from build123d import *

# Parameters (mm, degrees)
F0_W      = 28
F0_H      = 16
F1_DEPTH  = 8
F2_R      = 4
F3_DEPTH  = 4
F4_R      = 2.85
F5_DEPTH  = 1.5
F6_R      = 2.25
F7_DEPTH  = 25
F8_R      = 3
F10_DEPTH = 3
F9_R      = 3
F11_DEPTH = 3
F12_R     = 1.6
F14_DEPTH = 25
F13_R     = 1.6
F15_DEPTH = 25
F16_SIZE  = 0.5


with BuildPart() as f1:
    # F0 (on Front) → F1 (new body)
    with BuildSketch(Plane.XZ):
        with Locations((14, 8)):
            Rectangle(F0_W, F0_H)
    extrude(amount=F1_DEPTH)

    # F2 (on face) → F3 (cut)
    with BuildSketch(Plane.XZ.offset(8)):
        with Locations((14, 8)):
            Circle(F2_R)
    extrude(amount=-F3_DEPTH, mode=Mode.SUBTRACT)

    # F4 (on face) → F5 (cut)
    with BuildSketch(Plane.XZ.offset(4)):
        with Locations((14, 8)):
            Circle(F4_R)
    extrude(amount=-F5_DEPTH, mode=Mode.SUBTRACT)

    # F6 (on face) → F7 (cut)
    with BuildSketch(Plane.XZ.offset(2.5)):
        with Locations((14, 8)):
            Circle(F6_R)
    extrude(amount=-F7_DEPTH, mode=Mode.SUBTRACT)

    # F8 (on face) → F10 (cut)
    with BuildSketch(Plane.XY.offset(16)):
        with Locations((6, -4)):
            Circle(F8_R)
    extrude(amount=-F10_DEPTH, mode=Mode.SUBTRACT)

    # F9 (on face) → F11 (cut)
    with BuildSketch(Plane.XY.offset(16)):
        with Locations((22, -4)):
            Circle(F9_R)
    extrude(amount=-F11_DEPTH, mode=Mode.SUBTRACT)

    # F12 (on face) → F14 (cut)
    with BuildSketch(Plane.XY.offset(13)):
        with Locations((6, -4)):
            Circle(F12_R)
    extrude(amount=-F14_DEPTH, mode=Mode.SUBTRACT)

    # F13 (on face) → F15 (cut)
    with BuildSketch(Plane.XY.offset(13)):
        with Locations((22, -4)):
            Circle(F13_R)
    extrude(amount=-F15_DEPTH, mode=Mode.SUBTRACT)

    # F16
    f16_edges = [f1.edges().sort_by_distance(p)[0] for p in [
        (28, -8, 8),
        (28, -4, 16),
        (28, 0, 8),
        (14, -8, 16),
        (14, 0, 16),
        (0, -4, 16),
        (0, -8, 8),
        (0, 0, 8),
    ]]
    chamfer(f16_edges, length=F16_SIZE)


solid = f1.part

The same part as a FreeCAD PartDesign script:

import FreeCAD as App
import Part
import Sketcher
Q = App.Units.Quantity


def edges_at(feature, points):
    """Names of the edges that pass closest to the given points."""
    edges = feature.Shape.Edges
    near = lambda p: min(range(len(edges)), key=lambda i: edges[i].distToShape(Part.Vertex(*p))[0])
    return sorted({f"Edge{near(p) + 1}" for p in points})


def add_polygon(sketch, points):
    """Adds a closed chain of lines whose ends are joined by coincident constraints."""
    first, n = sketch.GeometryCount, len(points)
    for a, b in zip(points, points[1:] + points[:1]):
        sketch.addGeometry(Part.LineSegment(App.Vector(*a, 0), App.Vector(*b, 0)), False)
    for i in range(n):
        sketch.addConstraint(Sketcher.Constraint("Coincident", first + i, 2, first + (i + 1) % n, 1))

doc = App.newDocument("Part")
body = doc.addObject("PartDesign::Body", "Body")

# Sketch on XZ plane
sketch1 = doc.addObject("Sketcher::SketchObject", "Sketch")
body.addObject(sketch1)
sketch1.AttachmentSupport = (doc.XZ_Plane, [""])
sketch1.MapMode = "FlatFace"
add_polygon(sketch1, [(0, 16), (0, 0), (28, 0), (28, 16)])  # lines 0-3
sketch1.addConstraint([
    Sketcher.Constraint("Vertical", 0),
    Sketcher.Constraint("Horizontal", 1),
    Sketcher.Constraint("Vertical", 2),
    Sketcher.Constraint("Horizontal", 3),
    Sketcher.Constraint("Coincident", 0, 2, -1, 1),
    Sketcher.Constraint("DistanceX", 1, 1, 1, 2, Q("28 mm")),
    Sketcher.Constraint("DistanceY", 0, 2, 0, 1, Q("16 mm")),
])
pad1 = doc.addObject("PartDesign::Pad", "Pad")
body.addObject(pad1)
pad1.Profile = sketch1
pad1.Length = 8

# Sketch on XZ plane
sketch2 = doc.addObject("Sketcher::SketchObject", "Sketch001")
body.addObject(sketch2)
sketch2.AttachmentSupport = (doc.XZ_Plane, [""])
sketch2.MapMode = "FlatFace"
sketch2.AttachmentOffset = App.Placement(App.Vector(0, 0, 8), App.Rotation())
sketch2.addGeometry(Part.Circle(App.Vector(14, 8, 0), App.Vector(0, 0, 1), 4), False)
sketch2.addConstraint([
    Sketcher.Constraint("Diameter", 0, Q("8 mm")),
    Sketcher.Constraint("DistanceX", -1, 1, 0, 3, Q("14 mm")),
    Sketcher.Constraint("DistanceY", -1, 1, 0, 3, Q("8 mm")),
])
pocket1 = doc.addObject("PartDesign::Pocket", "Pocket")
body.addObject(pocket1)
pocket1.Profile = sketch2
pocket1.Length = 4

# Sketch on XZ plane
sketch3 = doc.addObject("Sketcher::SketchObject", "Sketch002")
body.addObject(sketch3)
sketch3.AttachmentSupport = (doc.XZ_Plane, [""])
sketch3.MapMode = "FlatFace"
sketch3.AttachmentOffset = App.Placement(App.Vector(0, 0, 4), App.Rotation())
sketch3.addGeometry(Part.Circle(App.Vector(14, 8, 0), App.Vector(0, 0, 1), 2.85), False)
sketch3.addConstraint([
    Sketcher.Constraint("Diameter", 0, Q("5.7 mm")),
    Sketcher.Constraint("DistanceX", -1, 1, 0, 3, Q("14 mm")),
    Sketcher.Constraint("DistanceY", -1, 1, 0, 3, Q("8 mm")),
])
pocket2 = doc.addObject("PartDesign::Pocket", "Pocket001")
body.addObject(pocket2)
pocket2.Profile = sketch3
pocket2.Length = 1.5

# Sketch on XZ plane
sketch4 = doc.addObject("Sketcher::SketchObject", "Sketch003")
body.addObject(sketch4)
sketch4.AttachmentSupport = (doc.XZ_Plane, [""])
sketch4.MapMode = "FlatFace"
sketch4.AttachmentOffset = App.Placement(App.Vector(0, 0, 2.5), App.Rotation())
sketch4.addGeometry(Part.Circle(App.Vector(14, 8, 0), App.Vector(0, 0, 1), 2.25), False)
sketch4.addConstraint([
    Sketcher.Constraint("Diameter", 0, Q("4.5 mm")),
    Sketcher.Constraint("DistanceX", -1, 1, 0, 3, Q("14 mm")),
    Sketcher.Constraint("DistanceY", -1, 1, 0, 3, Q("8 mm")),
])
pocket3 = doc.addObject("PartDesign::Pocket", "Pocket002")
body.addObject(pocket3)
pocket3.Profile = sketch4
pocket3.Length = 25

# Sketch on XY plane
sketch5 = doc.addObject("Sketcher::SketchObject", "Sketch004")
body.addObject(sketch5)
sketch5.AttachmentSupport = (doc.XY_Plane, [""])
sketch5.MapMode = "FlatFace"
sketch5.AttachmentOffset = App.Placement(App.Vector(0, 0, 16), App.Rotation())
sketch5.addGeometry(Part.Circle(App.Vector(6, -4, 0), App.Vector(0, 0, 1), 3), False)
sketch5.addConstraint([
    Sketcher.Constraint("Diameter", 0, Q("6 mm")),
    Sketcher.Constraint("DistanceX", -1, 1, 0, 3, Q("6 mm")),
    Sketcher.Constraint("DistanceY", 0, 3, -1, 1, Q("4 mm")),
])
pocket4 = doc.addObject("PartDesign::Pocket", "Pocket003")
body.addObject(pocket4)
pocket4.Profile = sketch5
pocket4.Length = 3

# Sketch on XY plane
sketch6 = doc.addObject("Sketcher::SketchObject", "Sketch005")
body.addObject(sketch6)
sketch6.AttachmentSupport = (doc.XY_Plane, [""])
sketch6.MapMode = "FlatFace"
sketch6.AttachmentOffset = App.Placement(App.Vector(0, 0, 16), App.Rotation())
sketch6.addGeometry(Part.Circle(App.Vector(22, -4, 0), App.Vector(0, 0, 1), 3), False)
sketch6.addConstraint([
    Sketcher.Constraint("Diameter", 0, Q("6 mm")),
    Sketcher.Constraint("DistanceX", -1, 1, 0, 3, Q("22 mm")),
    Sketcher.Constraint("DistanceY", 0, 3, -1, 1, Q("4 mm")),
])
pocket5 = doc.addObject("PartDesign::Pocket", "Pocket004")
body.addObject(pocket5)
pocket5.Profile = sketch6
pocket5.Length = 3

# Sketch on XY plane
sketch7 = doc.addObject("Sketcher::SketchObject", "Sketch006")
body.addObject(sketch7)
sketch7.AttachmentSupport = (doc.XY_Plane, [""])
sketch7.MapMode = "FlatFace"
sketch7.AttachmentOffset = App.Placement(App.Vector(0, 0, 13), App.Rotation())
sketch7.addGeometry(Part.Circle(App.Vector(6, -4, 0), App.Vector(0, 0, 1), 1.6), False)
sketch7.addConstraint([
    Sketcher.Constraint("Diameter", 0, Q("3.2 mm")),
    Sketcher.Constraint("DistanceX", -1, 1, 0, 3, Q("6 mm")),
    Sketcher.Constraint("DistanceY", 0, 3, -1, 1, Q("4 mm")),
])
pocket6 = doc.addObject("PartDesign::Pocket", "Pocket005")
body.addObject(pocket6)
pocket6.Profile = sketch7
pocket6.Length = 25

# Sketch on XY plane
sketch8 = doc.addObject("Sketcher::SketchObject", "Sketch007")
body.addObject(sketch8)
sketch8.AttachmentSupport = (doc.XY_Plane, [""])
sketch8.MapMode = "FlatFace"
sketch8.AttachmentOffset = App.Placement(App.Vector(0, 0, 13), App.Rotation())
sketch8.addGeometry(Part.Circle(App.Vector(22, -4, 0), App.Vector(0, 0, 1), 1.6), False)
sketch8.addConstraint([
    Sketcher.Constraint("Diameter", 0, Q("3.2 mm")),
    Sketcher.Constraint("DistanceX", -1, 1, 0, 3, Q("22 mm")),
    Sketcher.Constraint("DistanceY", 0, 3, -1, 1, Q("4 mm")),
])
pocket7 = doc.addObject("PartDesign::Pocket", "Pocket006")
body.addObject(pocket7)
pocket7.Profile = sketch8
pocket7.Length = 25
doc.recompute()

chamfer = doc.addObject("PartDesign::Chamfer", "Chamfer")
body.addObject(chamfer)
chamfer.Base = (pocket7, edges_at(pocket7, [
    (28, -8, 8),
    (28, -4, 16),
    (28, 0, 8),
    (14, -8, 16),
    (14, 0, 16),
    (0, -4, 16),
    (0, -8, 8),
    (0, 0, 8),
]))
chamfer.Size = 0.5

doc.recompute()
